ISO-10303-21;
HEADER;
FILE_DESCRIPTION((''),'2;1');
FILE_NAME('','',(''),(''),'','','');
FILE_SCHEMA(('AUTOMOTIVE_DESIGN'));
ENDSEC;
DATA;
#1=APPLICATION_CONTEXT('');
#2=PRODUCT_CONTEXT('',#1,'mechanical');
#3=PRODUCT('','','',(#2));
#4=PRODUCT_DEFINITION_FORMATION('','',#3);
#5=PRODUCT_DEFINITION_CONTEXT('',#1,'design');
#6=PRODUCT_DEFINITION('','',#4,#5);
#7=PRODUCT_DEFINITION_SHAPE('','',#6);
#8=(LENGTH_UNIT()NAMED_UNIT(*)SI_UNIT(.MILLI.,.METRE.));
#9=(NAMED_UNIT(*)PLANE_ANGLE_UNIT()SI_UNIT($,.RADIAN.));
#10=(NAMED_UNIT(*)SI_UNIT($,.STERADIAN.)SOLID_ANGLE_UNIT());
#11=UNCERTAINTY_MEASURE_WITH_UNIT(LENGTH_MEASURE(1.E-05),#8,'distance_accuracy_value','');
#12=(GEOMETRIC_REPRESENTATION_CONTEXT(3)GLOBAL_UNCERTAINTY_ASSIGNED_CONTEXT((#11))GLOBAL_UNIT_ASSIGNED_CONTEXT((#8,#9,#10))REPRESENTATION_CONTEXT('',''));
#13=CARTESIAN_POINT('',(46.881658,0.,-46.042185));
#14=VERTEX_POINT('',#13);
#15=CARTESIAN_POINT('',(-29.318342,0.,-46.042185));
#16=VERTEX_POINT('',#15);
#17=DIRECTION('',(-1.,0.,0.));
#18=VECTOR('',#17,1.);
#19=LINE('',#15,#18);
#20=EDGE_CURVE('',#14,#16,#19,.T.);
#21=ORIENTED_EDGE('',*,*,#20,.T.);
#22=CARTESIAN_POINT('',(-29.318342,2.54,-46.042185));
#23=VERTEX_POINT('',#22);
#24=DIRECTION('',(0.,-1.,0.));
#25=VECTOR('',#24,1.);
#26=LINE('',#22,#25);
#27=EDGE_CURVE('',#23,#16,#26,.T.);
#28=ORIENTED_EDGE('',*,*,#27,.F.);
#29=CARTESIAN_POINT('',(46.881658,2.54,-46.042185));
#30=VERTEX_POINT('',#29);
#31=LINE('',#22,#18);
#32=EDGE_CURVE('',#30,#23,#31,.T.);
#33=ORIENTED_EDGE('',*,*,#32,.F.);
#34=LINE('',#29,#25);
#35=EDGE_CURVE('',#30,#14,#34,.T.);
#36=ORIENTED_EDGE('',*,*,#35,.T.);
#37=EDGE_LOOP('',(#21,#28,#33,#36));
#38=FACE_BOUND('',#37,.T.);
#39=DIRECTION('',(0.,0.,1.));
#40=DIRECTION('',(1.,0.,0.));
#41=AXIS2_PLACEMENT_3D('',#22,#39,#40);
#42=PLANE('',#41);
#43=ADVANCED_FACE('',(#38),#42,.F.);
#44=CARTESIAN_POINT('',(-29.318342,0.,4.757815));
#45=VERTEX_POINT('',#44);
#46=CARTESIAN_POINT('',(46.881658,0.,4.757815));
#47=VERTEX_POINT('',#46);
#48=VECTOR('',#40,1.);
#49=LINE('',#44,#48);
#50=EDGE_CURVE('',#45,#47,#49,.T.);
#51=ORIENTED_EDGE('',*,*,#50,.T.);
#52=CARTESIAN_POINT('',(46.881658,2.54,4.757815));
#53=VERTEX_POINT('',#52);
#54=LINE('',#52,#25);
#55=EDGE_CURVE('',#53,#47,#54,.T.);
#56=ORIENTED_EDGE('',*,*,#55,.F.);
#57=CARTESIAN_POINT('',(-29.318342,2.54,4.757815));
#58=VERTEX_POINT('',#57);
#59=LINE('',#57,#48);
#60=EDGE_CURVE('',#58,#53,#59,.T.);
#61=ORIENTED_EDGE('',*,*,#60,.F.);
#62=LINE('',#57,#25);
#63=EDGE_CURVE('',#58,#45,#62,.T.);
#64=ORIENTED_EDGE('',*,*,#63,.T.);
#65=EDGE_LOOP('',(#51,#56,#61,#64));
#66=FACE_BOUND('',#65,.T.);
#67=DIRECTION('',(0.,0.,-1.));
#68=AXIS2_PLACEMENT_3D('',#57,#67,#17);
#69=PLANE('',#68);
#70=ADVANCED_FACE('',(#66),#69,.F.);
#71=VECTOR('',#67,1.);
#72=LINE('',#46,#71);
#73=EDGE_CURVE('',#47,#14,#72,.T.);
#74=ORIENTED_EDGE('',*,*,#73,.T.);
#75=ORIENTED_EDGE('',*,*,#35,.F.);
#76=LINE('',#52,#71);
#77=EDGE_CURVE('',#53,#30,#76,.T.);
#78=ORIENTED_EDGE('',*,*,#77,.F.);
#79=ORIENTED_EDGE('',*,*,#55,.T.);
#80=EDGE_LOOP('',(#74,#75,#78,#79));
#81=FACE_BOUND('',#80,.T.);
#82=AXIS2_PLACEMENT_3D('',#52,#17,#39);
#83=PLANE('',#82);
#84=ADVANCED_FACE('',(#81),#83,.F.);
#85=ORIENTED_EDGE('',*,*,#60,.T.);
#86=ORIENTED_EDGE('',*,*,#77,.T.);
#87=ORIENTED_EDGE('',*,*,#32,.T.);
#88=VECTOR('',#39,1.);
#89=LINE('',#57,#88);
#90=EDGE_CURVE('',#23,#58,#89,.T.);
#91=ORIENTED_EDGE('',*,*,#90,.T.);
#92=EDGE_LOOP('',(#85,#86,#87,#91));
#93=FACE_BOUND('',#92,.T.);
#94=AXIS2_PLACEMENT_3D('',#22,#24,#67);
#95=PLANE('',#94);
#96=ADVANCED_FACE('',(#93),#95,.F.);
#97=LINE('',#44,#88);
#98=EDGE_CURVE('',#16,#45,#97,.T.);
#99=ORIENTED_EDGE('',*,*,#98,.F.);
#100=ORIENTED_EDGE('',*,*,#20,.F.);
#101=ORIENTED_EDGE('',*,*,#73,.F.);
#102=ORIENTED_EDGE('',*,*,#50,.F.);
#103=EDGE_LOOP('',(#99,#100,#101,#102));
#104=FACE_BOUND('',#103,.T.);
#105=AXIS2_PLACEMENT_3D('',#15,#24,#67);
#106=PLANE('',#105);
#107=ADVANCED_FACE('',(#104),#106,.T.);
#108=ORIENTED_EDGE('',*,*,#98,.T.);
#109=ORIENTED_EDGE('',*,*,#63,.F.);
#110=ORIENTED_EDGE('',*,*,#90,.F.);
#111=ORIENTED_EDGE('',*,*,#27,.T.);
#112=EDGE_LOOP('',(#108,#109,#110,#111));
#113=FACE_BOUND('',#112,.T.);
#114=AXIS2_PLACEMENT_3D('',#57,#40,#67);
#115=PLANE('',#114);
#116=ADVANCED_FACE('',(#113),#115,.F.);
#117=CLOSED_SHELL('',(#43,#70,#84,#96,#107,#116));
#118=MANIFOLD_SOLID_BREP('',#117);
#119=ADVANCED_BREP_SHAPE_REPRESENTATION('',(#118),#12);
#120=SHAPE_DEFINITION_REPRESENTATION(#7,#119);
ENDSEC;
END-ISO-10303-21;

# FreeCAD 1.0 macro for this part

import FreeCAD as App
import Part
import Sketcher

V = App.Vector
Q = App.Units.Quantity

doc = App.newDocument("Part")
body = doc.addObject("PartDesign::Body", "Body")

sketch1 = body.newObject("Sketcher::SketchObject", "Sketch")
sketch1.AttachmentSupport = (doc.getObject("XZ_Plane"), [""])
sketch1.MapMode = "FlatFace"
sketch1.addGeometry([
    Part.LineSegment(V(-29, -46, 0), V(-29, 5, 0)),
    Part.LineSegment(V(-29, 5, 0), V(47, 5, 0)),
    Part.LineSegment(V(47, 5, 0), V(47, -46, 0)),
    Part.LineSegment(V(47, -46, 0), V(-29, -46, 0)),
], False)
sketch1.addConstraint([
    Sketcher.Constraint("Coincident", 0, 2, 1, 1),
    Sketcher.Constraint("Coincident", 1, 2, 2, 1),
    Sketcher.Constraint("Coincident", 2, 2, 3, 1),
    Sketcher.Constraint("Coincident", 3, 2, 0, 1),
    Sketcher.Constraint("Vertical", 0),
    Sketcher.Constraint("Horizontal", 1),
    Sketcher.Constraint("Vertical", 2),
    Sketcher.Constraint("Horizontal", 3),
    Sketcher.Constraint("DistanceX", 1, 1, 1, 2, Q("3 in")),
    Sketcher.Constraint("DistanceY", 0, 1, 0, 2, Q("2 in")),
    Sketcher.Constraint("DistanceX", 0, 2, -1, 1, 29.318342),
    Sketcher.Constraint("DistanceY", -1, 1, 0, 2, 4.757815),
])
pad1 = body.newObject("PartDesign::Pad", "Pad")
pad1.Profile = sketch1
pad1.Length = Q("0.1 in")
pad1.Reversed = True

doc.recompute()
